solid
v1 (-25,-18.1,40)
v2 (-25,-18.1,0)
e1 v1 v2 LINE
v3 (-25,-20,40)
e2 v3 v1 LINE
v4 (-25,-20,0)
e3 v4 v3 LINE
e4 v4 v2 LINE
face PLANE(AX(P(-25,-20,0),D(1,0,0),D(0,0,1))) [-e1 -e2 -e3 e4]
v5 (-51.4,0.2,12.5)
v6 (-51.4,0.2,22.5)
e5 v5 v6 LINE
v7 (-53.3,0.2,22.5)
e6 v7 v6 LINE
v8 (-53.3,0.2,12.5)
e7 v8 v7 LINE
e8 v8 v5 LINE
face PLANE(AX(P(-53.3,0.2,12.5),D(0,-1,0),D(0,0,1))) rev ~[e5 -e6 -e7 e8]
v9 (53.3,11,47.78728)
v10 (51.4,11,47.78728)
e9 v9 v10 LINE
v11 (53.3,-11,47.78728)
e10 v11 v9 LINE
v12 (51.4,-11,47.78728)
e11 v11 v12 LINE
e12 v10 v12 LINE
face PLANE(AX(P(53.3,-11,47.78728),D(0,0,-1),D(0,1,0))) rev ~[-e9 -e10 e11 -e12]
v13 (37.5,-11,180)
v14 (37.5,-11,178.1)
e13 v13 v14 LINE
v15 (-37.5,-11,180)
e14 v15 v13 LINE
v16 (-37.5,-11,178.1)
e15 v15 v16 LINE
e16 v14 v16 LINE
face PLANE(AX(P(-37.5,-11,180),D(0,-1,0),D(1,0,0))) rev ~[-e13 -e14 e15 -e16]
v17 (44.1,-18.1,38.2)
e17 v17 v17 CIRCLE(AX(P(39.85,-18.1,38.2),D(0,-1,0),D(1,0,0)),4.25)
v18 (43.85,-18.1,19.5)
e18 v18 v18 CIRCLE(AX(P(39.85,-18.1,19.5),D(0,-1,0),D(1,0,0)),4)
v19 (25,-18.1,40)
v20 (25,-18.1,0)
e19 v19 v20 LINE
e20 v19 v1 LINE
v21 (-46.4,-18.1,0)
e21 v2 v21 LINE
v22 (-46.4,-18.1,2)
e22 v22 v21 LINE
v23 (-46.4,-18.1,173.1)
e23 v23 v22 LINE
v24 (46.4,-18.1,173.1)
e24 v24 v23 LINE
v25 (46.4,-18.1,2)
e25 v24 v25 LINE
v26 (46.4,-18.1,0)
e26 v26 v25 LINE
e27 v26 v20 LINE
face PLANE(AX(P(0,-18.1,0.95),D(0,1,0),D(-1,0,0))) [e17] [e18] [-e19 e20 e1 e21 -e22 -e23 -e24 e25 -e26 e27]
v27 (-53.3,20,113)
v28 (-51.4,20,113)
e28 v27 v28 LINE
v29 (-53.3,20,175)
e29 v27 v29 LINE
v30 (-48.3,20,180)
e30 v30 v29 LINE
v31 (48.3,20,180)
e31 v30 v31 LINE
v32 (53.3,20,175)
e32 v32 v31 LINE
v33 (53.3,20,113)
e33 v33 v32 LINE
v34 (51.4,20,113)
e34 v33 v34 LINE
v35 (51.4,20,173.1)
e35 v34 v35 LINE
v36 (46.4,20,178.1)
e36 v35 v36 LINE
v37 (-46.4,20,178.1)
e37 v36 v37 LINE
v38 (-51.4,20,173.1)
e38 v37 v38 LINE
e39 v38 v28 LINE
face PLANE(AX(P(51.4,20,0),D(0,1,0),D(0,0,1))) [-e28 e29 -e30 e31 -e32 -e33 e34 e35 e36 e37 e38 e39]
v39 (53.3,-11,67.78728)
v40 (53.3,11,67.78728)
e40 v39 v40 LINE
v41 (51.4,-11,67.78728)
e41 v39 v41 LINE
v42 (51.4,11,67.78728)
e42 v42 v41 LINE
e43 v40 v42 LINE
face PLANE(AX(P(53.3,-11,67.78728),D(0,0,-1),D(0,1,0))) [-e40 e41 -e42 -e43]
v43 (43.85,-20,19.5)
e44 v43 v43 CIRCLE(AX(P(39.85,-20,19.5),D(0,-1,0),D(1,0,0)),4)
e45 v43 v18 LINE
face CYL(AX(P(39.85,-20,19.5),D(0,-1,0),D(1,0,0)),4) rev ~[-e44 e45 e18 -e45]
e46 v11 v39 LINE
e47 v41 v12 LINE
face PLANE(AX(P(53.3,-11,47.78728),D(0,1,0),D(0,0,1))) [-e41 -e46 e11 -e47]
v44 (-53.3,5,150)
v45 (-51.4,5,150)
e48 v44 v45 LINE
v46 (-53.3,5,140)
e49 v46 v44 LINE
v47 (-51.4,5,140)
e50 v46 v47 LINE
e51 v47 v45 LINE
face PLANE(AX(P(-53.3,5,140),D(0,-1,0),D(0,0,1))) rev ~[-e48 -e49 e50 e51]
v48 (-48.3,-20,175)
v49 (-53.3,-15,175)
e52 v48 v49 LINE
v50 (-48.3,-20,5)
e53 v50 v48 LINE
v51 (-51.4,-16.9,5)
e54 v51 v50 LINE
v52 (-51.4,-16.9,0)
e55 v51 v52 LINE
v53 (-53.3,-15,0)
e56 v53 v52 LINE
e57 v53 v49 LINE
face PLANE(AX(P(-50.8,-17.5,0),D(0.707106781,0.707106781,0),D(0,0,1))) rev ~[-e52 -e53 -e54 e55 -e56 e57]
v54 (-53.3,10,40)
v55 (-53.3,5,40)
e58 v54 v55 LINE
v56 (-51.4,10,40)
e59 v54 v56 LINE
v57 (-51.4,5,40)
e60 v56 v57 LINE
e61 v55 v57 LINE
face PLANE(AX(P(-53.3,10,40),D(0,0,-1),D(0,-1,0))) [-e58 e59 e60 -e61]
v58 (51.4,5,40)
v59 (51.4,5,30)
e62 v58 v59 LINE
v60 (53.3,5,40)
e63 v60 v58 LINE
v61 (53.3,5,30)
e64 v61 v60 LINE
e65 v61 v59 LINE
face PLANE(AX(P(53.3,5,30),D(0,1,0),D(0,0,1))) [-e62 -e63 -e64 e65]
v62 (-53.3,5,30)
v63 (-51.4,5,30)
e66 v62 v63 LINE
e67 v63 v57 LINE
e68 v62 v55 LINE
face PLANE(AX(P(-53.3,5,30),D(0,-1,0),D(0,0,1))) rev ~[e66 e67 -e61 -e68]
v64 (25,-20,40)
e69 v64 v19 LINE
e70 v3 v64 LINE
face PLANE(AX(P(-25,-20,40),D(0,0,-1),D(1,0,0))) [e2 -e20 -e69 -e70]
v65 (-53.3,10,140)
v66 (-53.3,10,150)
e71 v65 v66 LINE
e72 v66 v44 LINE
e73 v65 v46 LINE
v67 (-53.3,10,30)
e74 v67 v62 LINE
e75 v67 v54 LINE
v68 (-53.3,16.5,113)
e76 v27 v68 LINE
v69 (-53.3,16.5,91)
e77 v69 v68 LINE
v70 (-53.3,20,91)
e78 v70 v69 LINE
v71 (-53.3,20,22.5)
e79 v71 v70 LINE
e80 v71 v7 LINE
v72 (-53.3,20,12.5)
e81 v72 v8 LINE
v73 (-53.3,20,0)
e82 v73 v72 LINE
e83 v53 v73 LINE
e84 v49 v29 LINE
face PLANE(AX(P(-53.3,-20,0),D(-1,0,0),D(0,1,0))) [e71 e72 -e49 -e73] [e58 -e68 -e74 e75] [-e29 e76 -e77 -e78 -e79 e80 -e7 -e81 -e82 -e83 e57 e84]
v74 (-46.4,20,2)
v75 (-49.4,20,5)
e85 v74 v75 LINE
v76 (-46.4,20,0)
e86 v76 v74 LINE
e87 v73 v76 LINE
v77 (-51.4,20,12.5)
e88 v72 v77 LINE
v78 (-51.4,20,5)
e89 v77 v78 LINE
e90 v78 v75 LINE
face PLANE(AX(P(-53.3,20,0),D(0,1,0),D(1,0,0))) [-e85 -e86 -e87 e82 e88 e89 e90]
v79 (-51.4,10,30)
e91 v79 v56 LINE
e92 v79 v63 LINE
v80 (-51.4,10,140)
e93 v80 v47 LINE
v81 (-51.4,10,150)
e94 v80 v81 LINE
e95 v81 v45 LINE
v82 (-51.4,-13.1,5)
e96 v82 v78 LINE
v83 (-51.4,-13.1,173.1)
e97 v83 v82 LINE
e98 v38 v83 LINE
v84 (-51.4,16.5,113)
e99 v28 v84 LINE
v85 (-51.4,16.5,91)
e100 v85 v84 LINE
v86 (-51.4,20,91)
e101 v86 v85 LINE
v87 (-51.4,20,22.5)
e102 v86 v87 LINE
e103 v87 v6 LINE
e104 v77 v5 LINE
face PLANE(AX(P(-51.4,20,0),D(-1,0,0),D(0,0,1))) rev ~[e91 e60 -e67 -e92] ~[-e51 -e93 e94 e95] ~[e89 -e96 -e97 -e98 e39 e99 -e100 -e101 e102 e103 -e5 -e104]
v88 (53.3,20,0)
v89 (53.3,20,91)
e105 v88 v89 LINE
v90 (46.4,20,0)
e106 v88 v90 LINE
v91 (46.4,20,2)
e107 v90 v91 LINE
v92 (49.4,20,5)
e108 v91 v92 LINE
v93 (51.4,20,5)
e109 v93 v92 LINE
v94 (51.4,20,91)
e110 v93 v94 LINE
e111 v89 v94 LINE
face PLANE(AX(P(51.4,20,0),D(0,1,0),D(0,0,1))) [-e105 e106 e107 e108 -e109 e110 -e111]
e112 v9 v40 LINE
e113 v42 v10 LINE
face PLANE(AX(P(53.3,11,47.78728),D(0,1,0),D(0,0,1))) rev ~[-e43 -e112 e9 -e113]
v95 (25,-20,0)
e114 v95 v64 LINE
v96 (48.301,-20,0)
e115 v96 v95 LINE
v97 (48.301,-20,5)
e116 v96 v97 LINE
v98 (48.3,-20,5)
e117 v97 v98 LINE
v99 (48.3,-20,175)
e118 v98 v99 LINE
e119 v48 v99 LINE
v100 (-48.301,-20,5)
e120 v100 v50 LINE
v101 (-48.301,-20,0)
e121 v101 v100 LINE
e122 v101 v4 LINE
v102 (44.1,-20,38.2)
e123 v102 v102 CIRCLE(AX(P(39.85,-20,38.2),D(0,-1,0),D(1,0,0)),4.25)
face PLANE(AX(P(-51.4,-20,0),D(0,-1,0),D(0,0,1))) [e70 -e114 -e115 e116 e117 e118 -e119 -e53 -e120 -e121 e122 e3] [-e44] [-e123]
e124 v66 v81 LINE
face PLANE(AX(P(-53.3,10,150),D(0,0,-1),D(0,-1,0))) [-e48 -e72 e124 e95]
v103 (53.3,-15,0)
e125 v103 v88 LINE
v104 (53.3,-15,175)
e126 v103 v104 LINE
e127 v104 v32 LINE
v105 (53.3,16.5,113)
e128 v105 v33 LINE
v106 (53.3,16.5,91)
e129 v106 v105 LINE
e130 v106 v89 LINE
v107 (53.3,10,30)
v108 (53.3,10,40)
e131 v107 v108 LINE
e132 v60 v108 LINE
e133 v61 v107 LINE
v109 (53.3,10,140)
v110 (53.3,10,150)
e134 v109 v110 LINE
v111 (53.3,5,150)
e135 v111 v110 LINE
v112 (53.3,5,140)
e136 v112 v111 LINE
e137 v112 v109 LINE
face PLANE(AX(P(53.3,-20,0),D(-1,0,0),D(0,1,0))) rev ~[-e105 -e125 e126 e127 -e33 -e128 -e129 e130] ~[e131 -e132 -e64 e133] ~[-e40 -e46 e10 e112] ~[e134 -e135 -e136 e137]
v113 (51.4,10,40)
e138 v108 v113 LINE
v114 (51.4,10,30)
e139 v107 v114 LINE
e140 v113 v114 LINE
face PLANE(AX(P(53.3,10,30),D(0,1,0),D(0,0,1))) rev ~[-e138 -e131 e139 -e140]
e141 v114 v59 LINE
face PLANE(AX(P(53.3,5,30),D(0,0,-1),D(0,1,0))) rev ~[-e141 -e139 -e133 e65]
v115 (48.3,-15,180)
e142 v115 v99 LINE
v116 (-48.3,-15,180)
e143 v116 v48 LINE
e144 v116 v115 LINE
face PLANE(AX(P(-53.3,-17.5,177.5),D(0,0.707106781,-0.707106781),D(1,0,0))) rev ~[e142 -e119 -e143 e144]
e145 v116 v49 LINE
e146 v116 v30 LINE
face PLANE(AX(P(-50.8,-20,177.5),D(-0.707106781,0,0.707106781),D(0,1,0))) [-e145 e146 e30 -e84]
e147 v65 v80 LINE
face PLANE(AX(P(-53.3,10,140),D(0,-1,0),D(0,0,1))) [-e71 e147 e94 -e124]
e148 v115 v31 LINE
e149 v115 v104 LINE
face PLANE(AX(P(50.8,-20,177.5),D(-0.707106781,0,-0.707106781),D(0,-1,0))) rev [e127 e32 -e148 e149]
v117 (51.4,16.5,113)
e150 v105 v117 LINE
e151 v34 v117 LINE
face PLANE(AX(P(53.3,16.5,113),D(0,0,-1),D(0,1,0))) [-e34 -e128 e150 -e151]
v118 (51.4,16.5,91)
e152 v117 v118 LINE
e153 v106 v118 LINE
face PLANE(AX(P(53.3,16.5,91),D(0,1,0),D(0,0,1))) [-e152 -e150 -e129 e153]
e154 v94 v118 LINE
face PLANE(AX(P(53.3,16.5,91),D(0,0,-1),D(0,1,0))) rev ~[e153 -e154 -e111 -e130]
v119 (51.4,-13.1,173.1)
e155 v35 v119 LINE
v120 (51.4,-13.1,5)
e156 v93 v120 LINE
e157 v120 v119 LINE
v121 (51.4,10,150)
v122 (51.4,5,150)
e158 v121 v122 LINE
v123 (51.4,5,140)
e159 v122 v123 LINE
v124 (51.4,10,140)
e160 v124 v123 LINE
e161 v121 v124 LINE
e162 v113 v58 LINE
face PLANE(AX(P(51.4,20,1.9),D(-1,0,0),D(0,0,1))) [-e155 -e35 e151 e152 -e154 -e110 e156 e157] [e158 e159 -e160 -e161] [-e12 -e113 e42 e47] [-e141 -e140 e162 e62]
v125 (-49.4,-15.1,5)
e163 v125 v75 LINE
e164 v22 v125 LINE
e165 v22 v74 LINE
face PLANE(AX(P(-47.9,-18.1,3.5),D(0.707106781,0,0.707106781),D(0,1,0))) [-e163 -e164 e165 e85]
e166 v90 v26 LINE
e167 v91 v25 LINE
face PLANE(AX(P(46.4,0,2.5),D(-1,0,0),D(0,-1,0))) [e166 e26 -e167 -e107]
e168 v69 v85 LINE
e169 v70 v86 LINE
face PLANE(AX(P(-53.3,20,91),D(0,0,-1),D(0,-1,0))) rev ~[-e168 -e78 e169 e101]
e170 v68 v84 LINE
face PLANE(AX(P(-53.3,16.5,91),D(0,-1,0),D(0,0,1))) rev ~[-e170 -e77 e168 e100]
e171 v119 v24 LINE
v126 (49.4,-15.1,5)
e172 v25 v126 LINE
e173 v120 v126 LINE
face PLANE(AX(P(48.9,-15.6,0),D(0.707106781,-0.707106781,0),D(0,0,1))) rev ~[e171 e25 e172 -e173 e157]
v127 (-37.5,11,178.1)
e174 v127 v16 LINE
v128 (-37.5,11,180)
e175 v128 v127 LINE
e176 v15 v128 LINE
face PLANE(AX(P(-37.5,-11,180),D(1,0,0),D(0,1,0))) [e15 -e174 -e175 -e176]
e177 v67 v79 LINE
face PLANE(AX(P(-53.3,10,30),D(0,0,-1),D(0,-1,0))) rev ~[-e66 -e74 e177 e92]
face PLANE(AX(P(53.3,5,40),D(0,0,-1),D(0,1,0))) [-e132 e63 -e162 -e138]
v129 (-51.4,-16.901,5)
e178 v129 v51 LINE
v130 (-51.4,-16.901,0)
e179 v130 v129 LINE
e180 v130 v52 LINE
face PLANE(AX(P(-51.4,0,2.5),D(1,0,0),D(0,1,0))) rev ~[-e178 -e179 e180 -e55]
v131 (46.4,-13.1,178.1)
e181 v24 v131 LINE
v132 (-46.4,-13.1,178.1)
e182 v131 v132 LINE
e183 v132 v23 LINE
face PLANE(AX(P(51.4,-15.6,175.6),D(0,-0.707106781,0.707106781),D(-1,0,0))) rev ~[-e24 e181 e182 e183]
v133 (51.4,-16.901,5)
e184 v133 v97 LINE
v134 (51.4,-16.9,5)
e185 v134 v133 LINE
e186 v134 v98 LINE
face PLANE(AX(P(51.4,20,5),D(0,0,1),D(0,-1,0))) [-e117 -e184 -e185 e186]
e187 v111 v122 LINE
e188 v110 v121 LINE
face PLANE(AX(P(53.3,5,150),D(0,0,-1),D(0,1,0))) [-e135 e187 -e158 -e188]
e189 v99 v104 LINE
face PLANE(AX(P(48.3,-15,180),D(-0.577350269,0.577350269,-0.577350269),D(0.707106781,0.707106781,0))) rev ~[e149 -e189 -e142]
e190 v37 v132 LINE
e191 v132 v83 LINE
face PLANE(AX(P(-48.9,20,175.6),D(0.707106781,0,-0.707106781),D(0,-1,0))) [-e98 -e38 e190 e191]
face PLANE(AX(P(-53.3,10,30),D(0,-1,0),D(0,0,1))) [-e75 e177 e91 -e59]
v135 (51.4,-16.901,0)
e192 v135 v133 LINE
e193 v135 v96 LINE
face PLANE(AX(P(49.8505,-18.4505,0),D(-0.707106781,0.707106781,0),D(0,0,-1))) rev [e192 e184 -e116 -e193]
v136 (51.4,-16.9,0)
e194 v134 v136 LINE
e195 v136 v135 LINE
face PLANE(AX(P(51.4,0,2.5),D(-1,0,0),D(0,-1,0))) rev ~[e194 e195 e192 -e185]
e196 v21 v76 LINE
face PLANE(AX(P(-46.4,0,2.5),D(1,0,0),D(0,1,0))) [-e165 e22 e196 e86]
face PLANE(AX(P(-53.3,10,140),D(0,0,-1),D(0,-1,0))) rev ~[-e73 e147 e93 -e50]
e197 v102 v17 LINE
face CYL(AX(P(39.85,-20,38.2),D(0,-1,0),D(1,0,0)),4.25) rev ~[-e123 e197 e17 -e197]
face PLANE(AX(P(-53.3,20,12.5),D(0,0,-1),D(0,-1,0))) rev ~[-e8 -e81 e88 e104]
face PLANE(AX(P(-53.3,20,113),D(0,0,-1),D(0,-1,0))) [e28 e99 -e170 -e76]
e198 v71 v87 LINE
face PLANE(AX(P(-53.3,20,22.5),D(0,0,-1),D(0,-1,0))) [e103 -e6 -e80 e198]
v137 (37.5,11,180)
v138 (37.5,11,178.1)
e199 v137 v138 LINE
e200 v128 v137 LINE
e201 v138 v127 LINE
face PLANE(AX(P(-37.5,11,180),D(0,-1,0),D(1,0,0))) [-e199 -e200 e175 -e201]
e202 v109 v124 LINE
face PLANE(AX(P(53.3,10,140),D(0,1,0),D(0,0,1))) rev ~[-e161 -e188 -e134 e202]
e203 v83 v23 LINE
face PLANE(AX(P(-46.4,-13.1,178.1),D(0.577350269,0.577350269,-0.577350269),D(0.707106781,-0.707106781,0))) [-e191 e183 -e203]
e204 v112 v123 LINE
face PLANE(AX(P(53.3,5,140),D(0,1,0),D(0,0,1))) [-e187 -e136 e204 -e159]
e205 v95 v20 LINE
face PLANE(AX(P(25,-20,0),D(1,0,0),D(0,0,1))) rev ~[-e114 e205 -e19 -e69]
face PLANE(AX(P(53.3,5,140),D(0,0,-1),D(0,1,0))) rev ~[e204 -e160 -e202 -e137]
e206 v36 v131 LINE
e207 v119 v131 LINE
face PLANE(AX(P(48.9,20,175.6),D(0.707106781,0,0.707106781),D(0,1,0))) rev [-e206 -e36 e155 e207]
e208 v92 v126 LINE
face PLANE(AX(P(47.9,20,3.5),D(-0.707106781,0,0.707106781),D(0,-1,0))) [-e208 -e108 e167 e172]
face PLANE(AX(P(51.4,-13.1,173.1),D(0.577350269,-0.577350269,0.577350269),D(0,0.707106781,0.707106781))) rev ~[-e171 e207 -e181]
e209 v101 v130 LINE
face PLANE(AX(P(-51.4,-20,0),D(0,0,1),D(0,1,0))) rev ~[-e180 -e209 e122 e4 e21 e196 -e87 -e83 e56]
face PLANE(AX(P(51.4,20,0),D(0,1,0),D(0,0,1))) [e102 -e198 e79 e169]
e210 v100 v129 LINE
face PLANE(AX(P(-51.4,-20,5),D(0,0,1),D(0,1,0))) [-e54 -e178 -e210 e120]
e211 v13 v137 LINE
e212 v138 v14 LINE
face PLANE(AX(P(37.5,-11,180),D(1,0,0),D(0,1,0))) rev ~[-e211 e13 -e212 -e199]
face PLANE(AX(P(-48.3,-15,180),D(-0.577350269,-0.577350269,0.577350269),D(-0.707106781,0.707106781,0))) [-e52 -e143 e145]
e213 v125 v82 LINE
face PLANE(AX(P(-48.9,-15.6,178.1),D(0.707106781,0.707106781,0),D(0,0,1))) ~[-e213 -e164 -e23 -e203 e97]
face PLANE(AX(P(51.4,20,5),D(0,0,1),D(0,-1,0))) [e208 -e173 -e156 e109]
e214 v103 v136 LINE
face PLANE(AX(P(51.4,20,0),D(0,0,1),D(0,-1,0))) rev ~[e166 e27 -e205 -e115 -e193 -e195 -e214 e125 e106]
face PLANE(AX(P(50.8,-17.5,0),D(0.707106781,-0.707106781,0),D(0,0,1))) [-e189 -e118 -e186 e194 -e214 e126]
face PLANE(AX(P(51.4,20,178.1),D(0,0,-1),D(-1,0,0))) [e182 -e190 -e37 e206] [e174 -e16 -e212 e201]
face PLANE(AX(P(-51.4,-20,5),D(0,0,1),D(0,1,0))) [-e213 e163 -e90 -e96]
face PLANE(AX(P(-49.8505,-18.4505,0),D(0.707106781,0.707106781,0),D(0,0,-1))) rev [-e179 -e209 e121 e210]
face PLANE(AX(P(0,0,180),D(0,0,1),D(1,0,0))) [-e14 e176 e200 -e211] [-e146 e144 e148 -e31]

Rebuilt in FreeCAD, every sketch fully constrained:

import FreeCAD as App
import Part
import Sketcher

V = App.Vector


def edges_at(feature, points):
    """Names of the edges that pass closest to the given points."""
    edges = feature.Shape.Edges
    near = lambda p: min(range(len(edges)), key=lambda i: edges[i].distToShape(Part.Vertex(*p))[0])
    return sorted({f"Edge{near(p) + 1}" for p in points})

doc = App.newDocument("Part")
body = doc.addObject("PartDesign::Body", "Body")

# Sketch on XY plane
sketch1 = body.newObject("Sketcher::SketchObject", "Sketch")
sketch1.AttachmentSupport = (doc.getObject("XY_Plane"), [""])
sketch1.MapMode = "FlatFace"
sketch1.addGeometry(Part.LineSegment(V(-53, 20, 0), V(-53, -20, 0)), False)
sketch1.addGeometry(Part.LineSegment(V(-53, -20, 0), V(53, -20, 0)), False)
sketch1.addGeometry(Part.LineSegment(V(53, -20, 0), V(53, 20, 0)), False)
sketch1.addGeometry(Part.LineSegment(V(53, 20, 0), V(-53, 20, 0)), False)
sketch1.addConstraint(Sketcher.Constraint("Coincident", 0, 2, 1, 1))
sketch1.addConstraint(Sketcher.Constraint("Coincident", 1, 2, 2, 1))
sketch1.addConstraint(Sketcher.Constraint("Coincident", 2, 2, 3, 1))
sketch1.addConstraint(Sketcher.Constraint("Coincident", 3, 2, 0, 1))
sketch1.addConstraint(Sketcher.Constraint("Vertical", 0))
sketch1.addConstraint(Sketcher.Constraint("Horizontal", 1))
sketch1.addConstraint(Sketcher.Constraint("Vertical", 2))
sketch1.addConstraint(Sketcher.Constraint("Horizontal", 3))
sketch1.addConstraint(Sketcher.Constraint("Symmetric", 0, 2, 2, 2, -1, 1))
sketch1.addConstraint(Sketcher.Constraint("DistanceY", 0, 2, 0, 1, 40.0))
sketch1.addConstraint(Sketcher.Constraint("DistanceX", 1, 1, 1, 2, 106.6))
pad1 = body.newObject("PartDesign::Pad", "Pad")
pad1.Profile = sketch1
pad1.Length = 180

# Sketch on XZ plane
sketch2 = body.newObject("Sketcher::SketchObject", "Sketch001")
sketch2.AttachmentSupport = (doc.getObject("XZ_Plane"), [""])
sketch2.MapMode = "FlatFace"
sketch2.AttachmentOffset = App.Placement(V(0, 0, -20), App.Rotation())
sketch2.addGeometry(Part.LineSegment(V(51, 178, 0), V(51, 2, 0)), False)
sketch2.addGeometry(Part.LineSegment(V(51, 2, 0), V(-51, 2, 0)), False)
sketch2.addGeometry(Part.LineSegment(V(-51, 2, 0), V(-51, 178, 0)), False)
sketch2.addGeometry(Part.LineSegment(V(-51, 178, 0), V(51, 178, 0)), False)
sketch2.addConstraint(Sketcher.Constraint("Coincident", 0, 2, 1, 1))
sketch2.addConstraint(Sketcher.Constraint("Coincident", 1, 2, 2, 1))
sketch2.addConstraint(Sketcher.Constraint("Coincident", 2, 2, 3, 1))
sketch2.addConstraint(Sketcher.Constraint("Coincident", 3, 2, 0, 1))
sketch2.addConstraint(Sketcher.Constraint("Vertical", 0))
sketch2.addConstraint(Sketcher.Constraint("Horizontal", 1))
sketch2.addConstraint(Sketcher.Constraint("Vertical", 2))
sketch2.addConstraint(Sketcher.Constraint("Horizontal", 3))
sketch2.addConstraint(Sketcher.Constraint("DistanceX", 1, 2, 1, 1, 102.8))
sketch2.addConstraint(Sketcher.Constraint("DistanceY", 0, 2, 0, 1, 176.2))
sketch2.addConstraint(Sketcher.Constraint("DistanceX", -1, 1, 0, 2, 51.4))
sketch2.addConstraint(Sketcher.Constraint("DistanceY", -1, 1, 0, 2, 1.9))
pocket1 = body.newObject("PartDesign::Pocket", "Pocket")
pocket1.Profile = sketch2
pocket1.Length = 38.1
pocket1.Reversed = True

# Sketch on XZ plane
sketch3 = body.newObject("Sketcher::SketchObject", "Sketch002")
sketch3.AttachmentSupport = (doc.getObject("XZ_Plane"), [""])
sketch3.MapMode = "FlatFace"
sketch3.AttachmentOffset = App.Placement(V(0, 0, -20), App.Rotation())
sketch3.addGeometry(Part.LineSegment(V(51.4, 1.9, 0), V(51.4, 0, 0)), False)
sketch3.addGeometry(Part.LineSegment(V(51.4, 0, 0), V(-51.4, 0, 0)), False)
sketch3.addGeometry(Part.LineSegment(V(-51.4, 0, 0), V(-51.4, 1.9, 0)), False)
sketch3.addGeometry(Part.LineSegment(V(-51.4, 1.9, 0), V(51.4, 1.9, 0)), False)
sketch3.addConstraint(Sketcher.Constraint("Coincident", 0, 2, 1, 1))
sketch3.addConstraint(Sketcher.Constraint("Coincident", 1, 2, 2, 1))
sketch3.addConstraint(Sketcher.Constraint("Coincident", 2, 2, 3, 1))
sketch3.addConstraint(Sketcher.Constraint("Coincident", 3, 2, 0, 1))
sketch3.addConstraint(Sketcher.Constraint("Vertical", 0))
sketch3.addConstraint(Sketcher.Constraint("Horizontal", 1))
sketch3.addConstraint(Sketcher.Constraint("Vertical", 2))
sketch3.addConstraint(Sketcher.Constraint("Horizontal", 3))
sketch3.addConstraint(Sketcher.Constraint("Symmetric", 0, 2, 1, 2, -1, 1))
sketch3.addConstraint(Sketcher.Constraint("DistanceX", 1, 2, 1, 1, 102.8))
sketch3.addConstraint(Sketcher.Constraint("DistanceY", 0, 2, 0, 1, 1.9))
pocket2 = body.newObject("PartDesign::Pocket", "Pocket001")
pocket2.Profile = sketch3
pocket2.Length = 38.1
pocket2.Reversed = True

# Sketch on XZ plane
sketch4 = body.newObject("Sketcher::SketchObject", "Sketch003")
sketch4.AttachmentSupport = (doc.getObject("XZ_Plane"), [""])
sketch4.MapMode = "FlatFace"
sketch4.AttachmentOffset = App.Placement(V(0, 0, 20), App.Rotation())
sketch4.addGeometry(Part.LineSegment(V(-25, 40, 0), V(-25, 0, 0)), False)
sketch4.addGeometry(Part.LineSegment(V(-25, 0, 0), V(25, 0, 0)), False)
sketch4.addGeometry(Part.LineSegment(V(25, 0, 0), V(25, 40, 0)), False)
sketch4.addGeometry(Part.LineSegment(V(25, 40, 0), V(-25, 40, 0)), False)
sketch4.addConstraint(Sketcher.Constraint("Coincident", 0, 2, 1, 1))
sketch4.addConstraint(Sketcher.Constraint("Coincident", 1, 2, 2, 1))
sketch4.addConstraint(Sketcher.Constraint("Coincident", 2, 2, 3, 1))
sketch4.addConstraint(Sketcher.Constraint("Coincident", 3, 2, 0, 1))
sketch4.addConstraint(Sketcher.Constraint("Vertical", 0))
sketch4.addConstraint(Sketcher.Constraint("Horizontal", 1))
sketch4.addConstraint(Sketcher.Constraint("Vertical", 2))
sketch4.addConstraint(Sketcher.Constraint("Horizontal", 3))
sketch4.addConstraint(Sketcher.Constraint("Symmetric", 0, 2, 1, 2, -1, 1))
sketch4.addConstraint(Sketcher.Constraint("DistanceX", 1, 1, 1, 2, 50.0))
sketch4.addConstraint(Sketcher.Constraint("DistanceY", 0, 2, 0, 1, 40.0))
pocket3 = body.newObject("PartDesign::Pocket", "Pocket002")
pocket3.Profile = sketch4
pocket3.Length = 5

# Sketch on YZ plane
sketch5 = body.newObject("Sketcher::SketchObject", "Sketch004")
sketch5.AttachmentSupport = (doc.getObject("YZ_Plane"), [""])
sketch5.MapMode = "FlatFace"
sketch5.AttachmentOffset = App.Placement(V(0, 0, 53.3), App.Rotation())
sketch5.addGeometry(Part.LineSegment(V(-11, 68, 0), V(-11, 48, 0)), False)
sketch5.addGeometry(Part.LineSegment(V(-11, 48, 0), V(11, 48, 0)), False)
sketch5.addGeometry(Part.LineSegment(V(11, 48, 0), V(11, 68, 0)), False)
sketch5.addGeometry(Part.LineSegment(V(11, 68, 0), V(-11, 68, 0)), False)
sketch5.addConstraint(Sketcher.Constraint("Coincident", 0, 2, 1, 1))
sketch5.addConstraint(Sketcher.Constraint("Coincident", 1, 2, 2, 1))
sketch5.addConstraint(Sketcher.Constraint("Coincident", 2, 2, 3, 1))
sketch5.addConstraint(Sketcher.Constraint("Coincident", 3, 2, 0, 1))
sketch5.addConstraint(Sketcher.Constraint("Vertical", 0))
sketch5.addConstraint(Sketcher.Constraint("Horizontal", 1))
sketch5.addConstraint(Sketcher.Constraint("Vertical", 2))
sketch5.addConstraint(Sketcher.Constraint("Horizontal", 3))
sketch5.addConstraint(Sketcher.Constraint("DistanceX", 1, 1, 1, 2, 22.0))
sketch5.addConstraint(Sketcher.Constraint("DistanceY", 0, 2, 0, 1, 20.0))
sketch5.addConstraint(Sketcher.Constraint("DistanceX", 0, 2, -1, 1, 11.0))
sketch5.addConstraint(Sketcher.Constraint("DistanceY", -1, 1, 0, 2, 47.78728))
pocket4 = body.newObject("PartDesign::Pocket", "Pocket003")
pocket4.Profile = sketch5
pocket4.Length = 5

# Sketch on XY plane
sketch6 = body.newObject("Sketcher::SketchObject", "Sketch005")
sketch6.AttachmentSupport = (doc.getObject("XY_Plane"), [""])
sketch6.MapMode = "FlatFace"
sketch6.AttachmentOffset = App.Placement(V(0, 0, 180), App.Rotation())
sketch6.addGeometry(Part.LineSegment(V(-38, 11, 0), V(-38, -11, 0)), False)
sketch6.addGeometry(Part.LineSegment(V(-38, -11, 0), V(38, -11, 0)), False)
sketch6.addGeometry(Part.LineSegment(V(38, -11, 0), V(38, 11, 0)), False)
sketch6.addGeometry(Part.LineSegment(V(38, 11, 0), V(-38, 11, 0)), False)
sketch6.addConstraint(Sketcher.Constraint("Coincident", 0, 2, 1, 1))
sketch6.addConstraint(Sketcher.Constraint("Coincident", 1, 2, 2, 1))
sketch6.addConstraint(Sketcher.Constraint("Coincident", 2, 2, 3, 1))
sketch6.addConstraint(Sketcher.Constraint("Coincident", 3, 2, 0, 1))
sketch6.addConstraint(Sketcher.Constraint("Vertical", 0))
sketch6.addConstraint(Sketcher.Constraint("Horizontal", 1))
sketch6.addConstraint(Sketcher.Constraint("Vertical", 2))
sketch6.addConstraint(Sketcher.Constraint("Horizontal", 3))
sketch6.addConstraint(Sketcher.Constraint("Symmetric", 0, 2, 2, 2, -1, 1))
sketch6.addConstraint(Sketcher.Constraint("DistanceX", 1, 1, 1, 2, 75.0))
sketch6.addConstraint(Sketcher.Constraint("DistanceY", 0, 2, 0, 1, 22.0))
pocket5 = body.newObject("PartDesign::Pocket", "Pocket004")
pocket5.Profile = sketch6
pocket5.Length = 5

# Sketch on XZ plane
sketch7 = body.newObject("Sketcher::SketchObject", "Sketch006")
sketch7.AttachmentSupport = (doc.getObject("XZ_Plane"), [""])
sketch7.MapMode = "FlatFace"
sketch7.AttachmentOffset = App.Placement(V(0, 0, 20), App.Rotation())
sketch7.addGeometry(Part.Circle(V(39.9, 19.5, 0), V(0, 0, 1), 4), False)
sketch7.addGeometry(Part.Circle(V(39.9, 38.2, 0), V(0, 0, 1), 4.2), False)
sketch7.addConstraint(Sketcher.Constraint("Vertical", 0, 3, 1, 3))
sketch7.addConstraint(Sketcher.Constraint("Diameter", 0, 8.0))
sketch7.addConstraint(Sketcher.Constraint("Diameter", 1, 8.5))
sketch7.addConstraint(Sketcher.Constraint("DistanceY", -1, 1, 0, 3, 19.5))
sketch7.addConstraint(Sketcher.Constraint("DistanceY", -1, 1, 1, 3, 38.2))
sketch7.addConstraint(Sketcher.Constraint("DistanceX", -1, 1, 0, 3, 39.85))
pocket6 = body.newObject("PartDesign::Pocket", "Pocket005")
pocket6.Profile = sketch7
pocket6.Length = 5
doc.recompute()

chamfer = body.newObject("PartDesign::Chamfer", "Chamfer")
chamfer.Base = (pocket6, edges_at(pocket6, [
    (-51.4, -18.1, 89.05),
    (-51.4, 0.95, 178.1),
    (0, -18.1, 178.1),
    (51.4, -18.1, 89.05),
    (51.4, 0.95, 178.1),
]))
chamfer.Size = 5
doc.recompute()

chamfer2 = body.newObject("PartDesign::Chamfer", "Chamfer001")
chamfer2.Base = (chamfer, edges_at(chamfer, [
    (53.3, -20, 90),
    (-53.3, -20, 90),
    (0, -20, 180),
    (53.3, 0, 180),
    (-53.3, 0, 180),
]))
chamfer2.Size = 5

# Sketch on YZ plane
sketch8 = body.newObject("Sketcher::SketchObject", "Sketch007")
sketch8.AttachmentSupport = (doc.getObject("YZ_Plane"), [""])
sketch8.MapMode = "FlatFace"
sketch8.AttachmentOffset = App.Placement(V(0, 0, 53.3), App.Rotation())
sketch8.addGeometry(Part.LineSegment(V(5, 150, 0), V(5, 140, 0)), False)
sketch8.addGeometry(Part.LineSegment(V(5, 140, 0), V(10, 140, 0)), False)
sketch8.addGeometry(Part.LineSegment(V(10, 140, 0), V(10, 150, 0)), False)
sketch8.addGeometry(Part.LineSegment(V(10, 150, 0), V(5, 150, 0)), False)
sketch8.addGeometry(Part.LineSegment(V(5, 40, 0), V(5, 30, 0)), False)
sketch8.addGeometry(Part.LineSegment(V(5, 30, 0), V(10, 30, 0)), False)
sketch8.addGeometry(Part.LineSegment(V(10, 30, 0), V(10, 40, 0)), False)
sketch8.addGeometry(Part.LineSegment(V(10, 40, 0), V(5, 40, 0)), False)
sketch8.addConstraint(Sketcher.Constraint("Coincident", 0, 2, 1, 1))
sketch8.addConstraint(Sketcher.Constraint("Coincident", 1, 2, 2, 1))
sketch8.addConstraint(Sketcher.Constraint("Coincident", 2, 2, 3, 1))
sketch8.addConstraint(Sketcher.Constraint("Coincident", 3, 2, 0, 1))
sketch8.addConstraint(Sketcher.Constraint("Coincident", 4, 2, 5, 1))
sketch8.addConstraint(Sketcher.Constraint("Coincident", 5, 2, 6, 1))
sketch8.addConstraint(Sketcher.Constraint("Coincident", 6, 2, 7, 1))
sketch8.addConstraint(Sketcher.Constraint("Coincident", 7, 2, 4, 1))
sketch8.addConstraint(Sketcher.Constraint("Vertical", 0))
sketch8.addConstraint(Sketcher.Constraint("Horizontal", 1))
sketch8.addConstraint(Sketcher.Constraint("Vertical", 2))
sketch8.addConstraint(Sketcher.Constraint("Horizontal", 3))
sketch8.addConstraint(Sketcher.Constraint("Vertical", 4))
sketch8.addConstraint(Sketcher.Constraint("Horizontal", 5))
sketch8.addConstraint(Sketcher.Constraint("Vertical", 6))
sketch8.addConstraint(Sketcher.Constraint("Horizontal", 7))
sketch8.addConstraint(Sketcher.Constraint("Vertical", 3, 2, 4, 2))
sketch8.addConstraint(Sketcher.Constraint("Vertical", 2, 2, 5, 2))
sketch8.addConstraint(Sketcher.Constraint("Equal", 2, 4))
sketch8.addConstraint(Sketcher.Constraint("DistanceX", 1, 1, 1, 2, 5.0))
sketch8.addConstraint(Sketcher.Constraint("DistanceY", 0, 2, 0, 1, 10.0))
sketch8.addConstraint(Sketcher.Constraint("DistanceX", -1, 1, 0, 2, 5.0))
sketch8.addConstraint(Sketcher.Constraint("DistanceY", -1, 1, 0, 2, 140.0))
sketch8.addConstraint(Sketcher.Constraint("DistanceY", -1, 1, 4, 2, 30.0))
pocket7 = body.newObject("PartDesign::Pocket", "Pocket006")
pocket7.Profile = sketch8
pocket7.Length = 5

# Sketch on YZ plane
sketch9 = body.newObject("Sketcher::SketchObject", "Sketch008")
sketch9.AttachmentSupport = (doc.getObject("YZ_Plane"), [""])
sketch9.MapMode = "FlatFace"
sketch9.AttachmentOffset = App.Placement(V(0, 0, -53.3), App.Rotation())
sketch9.addGeometry(Part.LineSegment(V(10, 150, 0), V(10, 140, 0)), False)
sketch9.addGeometry(Part.LineSegment(V(10, 140, 0), V(5, 140, 0)), False)
sketch9.addGeometry(Part.LineSegment(V(5, 140, 0), V(5, 150, 0)), False)
sketch9.addGeometry(Part.LineSegment(V(5, 150, 0), V(10, 150, 0)), False)
sketch9.addGeometry(Part.LineSegment(V(10, 40, 0), V(10, 30, 0)), False)
sketch9.addGeometry(Part.LineSegment(V(10, 30, 0), V(5, 30, 0)), False)
sketch9.addGeometry(Part.LineSegment(V(5, 30, 0), V(5, 40, 0)), False)
sketch9.addGeometry(Part.LineSegment(V(5, 40, 0), V(10, 40, 0)), False)
sketch9.addConstraint(Sketcher.Constraint("Coincident", 0, 2, 1, 1))
sketch9.addConstraint(Sketcher.Constraint("Coincident", 1, 2, 2, 1))
sketch9.addConstraint(Sketcher.Constraint("Coincident", 2, 2, 3, 1))
sketch9.addConstraint(Sketcher.Constraint("Coincident", 3, 2, 0, 1))
sketch9.addConstraint(Sketcher.Constraint("Coincident", 4, 2, 5, 1))
sketch9.addConstraint(Sketcher.Constraint("Coincident", 5, 2, 6, 1))
sketch9.addConstraint(Sketcher.Constraint("Coincident", 6, 2, 7, 1))
sketch9.addConstraint(Sketcher.Constraint("Coincident", 7, 2, 4, 1))
sketch9.addConstraint(Sketcher.Constraint("Vertical", 0))
sketch9.addConstraint(Sketcher.Constraint("Horizontal", 1))
sketch9.addConstraint(Sketcher.Constraint("Vertical", 2))
sketch9.addConstraint(Sketcher.Constraint("Horizontal", 3))
sketch9.addConstraint(Sketcher.Constraint("Vertical", 4))
sketch9.addConstraint(Sketcher.Constraint("Horizontal", 5))
sketch9.addConstraint(Sketcher.Constraint("Vertical", 6))
sketch9.addConstraint(Sketcher.Constraint("Horizontal", 7))
sketch9.addConstraint(Sketcher.Constraint("Vertical", 3, 2, 4, 2))
sketch9.addConstraint(Sketcher.Constraint("Vertical", 2, 2, 5, 2))
sketch9.addConstraint(Sketcher.Constraint("Equal", 2, 4))
sketch9.addConstraint(Sketcher.Constraint("DistanceX", 1, 2, 1, 1, 5.0))
sketch9.addConstraint(Sketcher.Constraint("DistanceY", 0, 2, 0, 1, 10.0))
sketch9.addConstraint(Sketcher.Constraint("DistanceX", -1, 1, 0, 2, 10.0))
sketch9.addConstraint(Sketcher.Constraint("DistanceY", -1, 1, 0, 2, 140.0))
sketch9.addConstraint(Sketcher.Constraint("DistanceY", -1, 1, 4, 2, 30.0))
pocket8 = body.newObject("PartDesign::Pocket", "Pocket007")
pocket8.Profile = sketch9
pocket8.Length = 5
pocket8.Reversed = True

# Sketch on YZ plane
sketch10 = body.newObject("Sketcher::SketchObject", "Sketch009")
sketch10.AttachmentSupport = (doc.getObject("YZ_Plane"), [""])
sketch10.MapMode = "FlatFace"
sketch10.AttachmentOffset = App.Placement(V(0, 0, -53.3), App.Rotation())
sketch10.addGeometry(Part.LineSegment(V(20, 22, 0), V(20, 12, 0)), False)
sketch10.addGeometry(Part.LineSegment(V(20, 12, 0), V(0, 12, 0)), False)
sketch10.addGeometry(Part.LineSegment(V(0, 12, 0), V(0, 22, 0)), False)
sketch10.addGeometry(Part.LineSegment(V(0, 22, 0), V(20, 22, 0)), False)
sketch10.addConstraint(Sketcher.Constraint("Coincident", 0, 2, 1, 1))
sketch10.addConstraint(Sketcher.Constraint("Coincident", 1, 2, 2, 1))
sketch10.addConstraint(Sketcher.Constraint("Coincident", 2, 2, 3, 1))
sketch10.addConstraint(Sketcher.Constraint("Coincident", 3, 2, 0, 1))
sketch10.addConstraint(Sketcher.Constraint("Vertical", 0))
sketch10.addConstraint(Sketcher.Constraint("Horizontal", 1))
sketch10.addConstraint(Sketcher.Constraint("Vertical", 2))
sketch10.addConstraint(Sketcher.Constraint("Horizontal", 3))
sketch10.addConstraint(Sketcher.Constraint("DistanceY", 0, 2, 0, 1, 10.0))
sketch10.addConstraint(Sketcher.Constraint("DistanceX", 1, 2, 1, 1, 19.8))
sketch10.addConstraint(Sketcher.Constraint("DistanceX", -1, 1, 0, 2, 20.0))
sketch10.addConstraint(Sketcher.Constraint("DistanceY", -1, 1, 0, 2, 12.5))
pocket9 = body.newObject("PartDesign::Pocket", "Pocket008")
pocket9.Profile = sketch10
pocket9.Length = 5
pocket9.Reversed = True

# Sketch on YZ plane
sketch11 = body.newObject("Sketcher::SketchObject", "Sketch010")
sketch11.AttachmentSupport = (doc.getObject("YZ_Plane"), [""])
sketch11.MapMode = "FlatFace"
sketch11.AttachmentOffset = App.Placement(V(0, 0, -51.4), App.Rotation())
sketch11.addGeometry(Part.LineSegment(V(-20, 5, 0), V(-20, 0, 0)), False)
sketch11.addGeometry(Part.LineSegment(V(-20, 0, 0), V(20, 0, 0)), False)
sketch11.addGeometry(Part.LineSegment(V(20, 0, 0), V(20, 5, 0)), False)
sketch11.addGeometry(Part.LineSegment(V(20, 5, 0), V(-20, 5, 0)), False)
sketch11.addConstraint(Sketcher.Constraint("Coincident", 0, 2, 1, 1))
sketch11.addConstraint(Sketcher.Constraint("Coincident", 1, 2, 2, 1))
sketch11.addConstraint(Sketcher.Constraint("Coincident", 2, 2, 3, 1))
sketch11.addConstraint(Sketcher.Constraint("Coincident", 3, 2, 0, 1))
sketch11.addConstraint(Sketcher.Constraint("Vertical", 0))
sketch11.addConstraint(Sketcher.Constraint("Horizontal", 1))
sketch11.addConstraint(Sketcher.Constraint("Vertical", 2))
sketch11.addConstraint(Sketcher.Constraint("Horizontal", 3))
sketch11.addConstraint(Sketcher.Constraint("Symmetric", 0, 2, 1, 2, -1, 1))
sketch11.addConstraint(Sketcher.Constraint("DistanceX", 1, 1, 1, 2, 40.0))
sketch11.addConstraint(Sketcher.Constraint("DistanceY", 0, 2, 0, 1, 5.0))
pad2 = body.newObject("PartDesign::Pad", "Pad001")
pad2.Profile = sketch11
pad2.Length = 5
doc.recompute()

chamfer3 = body.newObject("PartDesign::Chamfer", "Chamfer002")
chamfer3.Base = (pad2, edges_at(pad2, [(-51.4, -20, 2.5)]))
chamfer3.Size = 3.099
doc.recompute()

chamfer4 = body.newObject("PartDesign::Chamfer", "Chamfer003")
chamfer4.Base = (chamfer3, edges_at(chamfer3, [(-46.4, 0.95, 5)]))
chamfer4.Size = 3

# Sketch on YZ plane
sketch12 = body.newObject("Sketcher::SketchObject", "Sketch011")
sketch12.AttachmentSupport = (doc.getObject("YZ_Plane"), [""])
sketch12.MapMode = "FlatFace"
sketch12.AttachmentOffset = App.Placement(V(0, 0, 51.4), App.Rotation())
sketch12.addGeometry(Part.LineSegment(V(20, 5, 0), V(20, 0, 0)), False)
sketch12.addGeometry(Part.LineSegment(V(20, 0, 0), V(-20, 0, 0)), False)
sketch12.addGeometry(Part.LineSegment(V(-20, 0, 0), V(-20, 5, 0)), False)
sketch12.addGeometry(Part.LineSegment(V(-20, 5, 0), V(20, 5, 0)), False)
sketch12.addConstraint(Sketcher.Constraint("Coincident", 0, 2, 1, 1))
sketch12.addConstraint(Sketcher.Constraint("Coincident", 1, 2, 2, 1))
sketch12.addConstraint(Sketcher.Constraint("Coincident", 2, 2, 3, 1))
sketch12.addConstraint(Sketcher.Constraint("Coincident", 3, 2, 0, 1))
sketch12.addConstraint(Sketcher.Constraint("Vertical", 0))
sketch12.addConstraint(Sketcher.Constraint("Horizontal", 1))
sketch12.addConstraint(Sketcher.Constraint("Vertical", 2))
sketch12.addConstraint(Sketcher.Constraint("Horizontal", 3))
sketch12.addConstraint(Sketcher.Constraint("Symmetric", 0, 2, 1, 2, -1, 1))
sketch12.addConstraint(Sketcher.Constraint("DistanceX", 1, 2, 1, 1, 40.0))
sketch12.addConstraint(Sketcher.Constraint("DistanceY", 0, 2, 0, 1, 5.0))
pad3 = body.newObject("PartDesign::Pad", "Pad002")
pad3.Profile = sketch12
pad3.Length = 5
pad3.Reversed = True
doc.recompute()

chamfer5 = body.newObject("PartDesign::Chamfer", "Chamfer004")
chamfer5.Base = (pad3, edges_at(pad3, [(51.4, -20, 2.5)]))
chamfer5.Size = 3.099
doc.recompute()

chamfer6 = body.newObject("PartDesign::Chamfer", "Chamfer005")
chamfer6.Base = (chamfer5, edges_at(chamfer5, [(46.4, 0.95, 5)]))
chamfer6.Size = 3

# Sketch on YZ plane
sketch13 = body.newObject("Sketcher::SketchObject", "Sketch012")
sketch13.AttachmentSupport = (doc.getObject("YZ_Plane"), [""])
sketch13.MapMode = "FlatFace"
sketch13.AttachmentOffset = App.Placement(V(0, 0, 53.3), App.Rotation())
sketch13.addGeometry(Part.LineSegment(V(16.5, 113, 0), V(16.5, 91, 0)), False)
sketch13.addGeometry(Part.LineSegment(V(16.5, 91, 0), V(20, 91, 0)), False)
sketch13.addGeometry(Part.LineSegment(V(20, 91, 0), V(20, 113, 0)), False)
sketch13.addGeometry(Part.LineSegment(V(20, 113, 0), V(16.5, 113, 0)), False)
sketch13.addConstraint(Sketcher.Constraint("Coincident", 0, 2, 1, 1))
sketch13.addConstraint(Sketcher.Constraint("Coincident", 1, 2, 2, 1))
sketch13.addConstraint(Sketcher.Constraint("Coincident", 2, 2, 3, 1))
sketch13.addConstraint(Sketcher.Constraint("Coincident", 3, 2, 0, 1))
sketch13.addConstraint(Sketcher.Constraint("Vertical", 0))
sketch13.addConstraint(Sketcher.Constraint("Horizontal", 1))
sketch13.addConstraint(Sketcher.Constraint("Vertical", 2))
sketch13.addConstraint(Sketcher.Constraint("Horizontal", 3))
sketch13.addConstraint(Sketcher.Constraint("DistanceY", 0, 2, 0, 1, 22.0))
sketch13.addConstraint(Sketcher.Constraint("DistanceX", 1, 1, 1, 2, 3.5))
sketch13.addConstraint(Sketcher.Constraint("DistanceY", -1, 1, 0, 2, 91.0))
sketch13.addConstraint(Sketcher.Constraint("DistanceX", -1, 1, 1, 2, 20.0))
pocket10 = body.newObject("PartDesign::Pocket", "Pocket009")
pocket10.Profile = sketch13
pocket10.Length = 5

# Sketch on YZ plane
sketch14 = body.newObject("Sketcher::SketchObject", "Sketch013")
sketch14.AttachmentSupport = (doc.getObject("YZ_Plane"), [""])
sketch14.MapMode = "FlatFace"
sketch14.AttachmentOffset = App.Placement(V(0, 0, -53.3), App.Rotation())
sketch14.addGeometry(Part.LineSegment(V(20, 113, 0), V(20, 91, 0)), False)
sketch14.addGeometry(Part.LineSegment(V(20, 91, 0), V(16.5, 91, 0)), False)
sketch14.addGeometry(Part.LineSegment(V(16.5, 91, 0), V(16.5, 113, 0)), False)
sketch14.addGeometry(Part.LineSegment(V(16.5, 113, 0), V(20, 113, 0)), False)
sketch14.addConstraint(Sketcher.Constraint("Coincident", 0, 2, 1, 1))
sketch14.addConstraint(Sketcher.Constraint("Coincident", 1, 2, 2, 1))
sketch14.addConstraint(Sketcher.Constraint("Coincident", 2, 2, 3, 1))
sketch14.addConstraint(Sketcher.Constraint("Coincident", 3, 2, 0, 1))
sketch14.addConstraint(Sketcher.Constraint("Vertical", 0))
sketch14.addConstraint(Sketcher.Constraint("Horizontal", 1))
sketch14.addConstraint(Sketcher.Constraint("Vertical", 2))
sketch14.addConstraint(Sketcher.Constraint("Horizontal", 3))
sketch14.addConstraint(Sketcher.Constraint("DistanceY", 0, 2, 0, 1, 22.0))
sketch14.addConstraint(Sketcher.Constraint("DistanceX", 1, 2, 1, 1, 3.5))
sketch14.addConstraint(Sketcher.Constraint("DistanceX", -1, 1, 0, 2, 20.0))
sketch14.addConstraint(Sketcher.Constraint("DistanceY", -1, 1, 0, 2, 91.0))
pocket11 = body.newObject("PartDesign::Pocket", "Pocket010")
pocket11.Profile = sketch14
pocket11.Length = 5
pocket11.Reversed = True

doc.recompute()
